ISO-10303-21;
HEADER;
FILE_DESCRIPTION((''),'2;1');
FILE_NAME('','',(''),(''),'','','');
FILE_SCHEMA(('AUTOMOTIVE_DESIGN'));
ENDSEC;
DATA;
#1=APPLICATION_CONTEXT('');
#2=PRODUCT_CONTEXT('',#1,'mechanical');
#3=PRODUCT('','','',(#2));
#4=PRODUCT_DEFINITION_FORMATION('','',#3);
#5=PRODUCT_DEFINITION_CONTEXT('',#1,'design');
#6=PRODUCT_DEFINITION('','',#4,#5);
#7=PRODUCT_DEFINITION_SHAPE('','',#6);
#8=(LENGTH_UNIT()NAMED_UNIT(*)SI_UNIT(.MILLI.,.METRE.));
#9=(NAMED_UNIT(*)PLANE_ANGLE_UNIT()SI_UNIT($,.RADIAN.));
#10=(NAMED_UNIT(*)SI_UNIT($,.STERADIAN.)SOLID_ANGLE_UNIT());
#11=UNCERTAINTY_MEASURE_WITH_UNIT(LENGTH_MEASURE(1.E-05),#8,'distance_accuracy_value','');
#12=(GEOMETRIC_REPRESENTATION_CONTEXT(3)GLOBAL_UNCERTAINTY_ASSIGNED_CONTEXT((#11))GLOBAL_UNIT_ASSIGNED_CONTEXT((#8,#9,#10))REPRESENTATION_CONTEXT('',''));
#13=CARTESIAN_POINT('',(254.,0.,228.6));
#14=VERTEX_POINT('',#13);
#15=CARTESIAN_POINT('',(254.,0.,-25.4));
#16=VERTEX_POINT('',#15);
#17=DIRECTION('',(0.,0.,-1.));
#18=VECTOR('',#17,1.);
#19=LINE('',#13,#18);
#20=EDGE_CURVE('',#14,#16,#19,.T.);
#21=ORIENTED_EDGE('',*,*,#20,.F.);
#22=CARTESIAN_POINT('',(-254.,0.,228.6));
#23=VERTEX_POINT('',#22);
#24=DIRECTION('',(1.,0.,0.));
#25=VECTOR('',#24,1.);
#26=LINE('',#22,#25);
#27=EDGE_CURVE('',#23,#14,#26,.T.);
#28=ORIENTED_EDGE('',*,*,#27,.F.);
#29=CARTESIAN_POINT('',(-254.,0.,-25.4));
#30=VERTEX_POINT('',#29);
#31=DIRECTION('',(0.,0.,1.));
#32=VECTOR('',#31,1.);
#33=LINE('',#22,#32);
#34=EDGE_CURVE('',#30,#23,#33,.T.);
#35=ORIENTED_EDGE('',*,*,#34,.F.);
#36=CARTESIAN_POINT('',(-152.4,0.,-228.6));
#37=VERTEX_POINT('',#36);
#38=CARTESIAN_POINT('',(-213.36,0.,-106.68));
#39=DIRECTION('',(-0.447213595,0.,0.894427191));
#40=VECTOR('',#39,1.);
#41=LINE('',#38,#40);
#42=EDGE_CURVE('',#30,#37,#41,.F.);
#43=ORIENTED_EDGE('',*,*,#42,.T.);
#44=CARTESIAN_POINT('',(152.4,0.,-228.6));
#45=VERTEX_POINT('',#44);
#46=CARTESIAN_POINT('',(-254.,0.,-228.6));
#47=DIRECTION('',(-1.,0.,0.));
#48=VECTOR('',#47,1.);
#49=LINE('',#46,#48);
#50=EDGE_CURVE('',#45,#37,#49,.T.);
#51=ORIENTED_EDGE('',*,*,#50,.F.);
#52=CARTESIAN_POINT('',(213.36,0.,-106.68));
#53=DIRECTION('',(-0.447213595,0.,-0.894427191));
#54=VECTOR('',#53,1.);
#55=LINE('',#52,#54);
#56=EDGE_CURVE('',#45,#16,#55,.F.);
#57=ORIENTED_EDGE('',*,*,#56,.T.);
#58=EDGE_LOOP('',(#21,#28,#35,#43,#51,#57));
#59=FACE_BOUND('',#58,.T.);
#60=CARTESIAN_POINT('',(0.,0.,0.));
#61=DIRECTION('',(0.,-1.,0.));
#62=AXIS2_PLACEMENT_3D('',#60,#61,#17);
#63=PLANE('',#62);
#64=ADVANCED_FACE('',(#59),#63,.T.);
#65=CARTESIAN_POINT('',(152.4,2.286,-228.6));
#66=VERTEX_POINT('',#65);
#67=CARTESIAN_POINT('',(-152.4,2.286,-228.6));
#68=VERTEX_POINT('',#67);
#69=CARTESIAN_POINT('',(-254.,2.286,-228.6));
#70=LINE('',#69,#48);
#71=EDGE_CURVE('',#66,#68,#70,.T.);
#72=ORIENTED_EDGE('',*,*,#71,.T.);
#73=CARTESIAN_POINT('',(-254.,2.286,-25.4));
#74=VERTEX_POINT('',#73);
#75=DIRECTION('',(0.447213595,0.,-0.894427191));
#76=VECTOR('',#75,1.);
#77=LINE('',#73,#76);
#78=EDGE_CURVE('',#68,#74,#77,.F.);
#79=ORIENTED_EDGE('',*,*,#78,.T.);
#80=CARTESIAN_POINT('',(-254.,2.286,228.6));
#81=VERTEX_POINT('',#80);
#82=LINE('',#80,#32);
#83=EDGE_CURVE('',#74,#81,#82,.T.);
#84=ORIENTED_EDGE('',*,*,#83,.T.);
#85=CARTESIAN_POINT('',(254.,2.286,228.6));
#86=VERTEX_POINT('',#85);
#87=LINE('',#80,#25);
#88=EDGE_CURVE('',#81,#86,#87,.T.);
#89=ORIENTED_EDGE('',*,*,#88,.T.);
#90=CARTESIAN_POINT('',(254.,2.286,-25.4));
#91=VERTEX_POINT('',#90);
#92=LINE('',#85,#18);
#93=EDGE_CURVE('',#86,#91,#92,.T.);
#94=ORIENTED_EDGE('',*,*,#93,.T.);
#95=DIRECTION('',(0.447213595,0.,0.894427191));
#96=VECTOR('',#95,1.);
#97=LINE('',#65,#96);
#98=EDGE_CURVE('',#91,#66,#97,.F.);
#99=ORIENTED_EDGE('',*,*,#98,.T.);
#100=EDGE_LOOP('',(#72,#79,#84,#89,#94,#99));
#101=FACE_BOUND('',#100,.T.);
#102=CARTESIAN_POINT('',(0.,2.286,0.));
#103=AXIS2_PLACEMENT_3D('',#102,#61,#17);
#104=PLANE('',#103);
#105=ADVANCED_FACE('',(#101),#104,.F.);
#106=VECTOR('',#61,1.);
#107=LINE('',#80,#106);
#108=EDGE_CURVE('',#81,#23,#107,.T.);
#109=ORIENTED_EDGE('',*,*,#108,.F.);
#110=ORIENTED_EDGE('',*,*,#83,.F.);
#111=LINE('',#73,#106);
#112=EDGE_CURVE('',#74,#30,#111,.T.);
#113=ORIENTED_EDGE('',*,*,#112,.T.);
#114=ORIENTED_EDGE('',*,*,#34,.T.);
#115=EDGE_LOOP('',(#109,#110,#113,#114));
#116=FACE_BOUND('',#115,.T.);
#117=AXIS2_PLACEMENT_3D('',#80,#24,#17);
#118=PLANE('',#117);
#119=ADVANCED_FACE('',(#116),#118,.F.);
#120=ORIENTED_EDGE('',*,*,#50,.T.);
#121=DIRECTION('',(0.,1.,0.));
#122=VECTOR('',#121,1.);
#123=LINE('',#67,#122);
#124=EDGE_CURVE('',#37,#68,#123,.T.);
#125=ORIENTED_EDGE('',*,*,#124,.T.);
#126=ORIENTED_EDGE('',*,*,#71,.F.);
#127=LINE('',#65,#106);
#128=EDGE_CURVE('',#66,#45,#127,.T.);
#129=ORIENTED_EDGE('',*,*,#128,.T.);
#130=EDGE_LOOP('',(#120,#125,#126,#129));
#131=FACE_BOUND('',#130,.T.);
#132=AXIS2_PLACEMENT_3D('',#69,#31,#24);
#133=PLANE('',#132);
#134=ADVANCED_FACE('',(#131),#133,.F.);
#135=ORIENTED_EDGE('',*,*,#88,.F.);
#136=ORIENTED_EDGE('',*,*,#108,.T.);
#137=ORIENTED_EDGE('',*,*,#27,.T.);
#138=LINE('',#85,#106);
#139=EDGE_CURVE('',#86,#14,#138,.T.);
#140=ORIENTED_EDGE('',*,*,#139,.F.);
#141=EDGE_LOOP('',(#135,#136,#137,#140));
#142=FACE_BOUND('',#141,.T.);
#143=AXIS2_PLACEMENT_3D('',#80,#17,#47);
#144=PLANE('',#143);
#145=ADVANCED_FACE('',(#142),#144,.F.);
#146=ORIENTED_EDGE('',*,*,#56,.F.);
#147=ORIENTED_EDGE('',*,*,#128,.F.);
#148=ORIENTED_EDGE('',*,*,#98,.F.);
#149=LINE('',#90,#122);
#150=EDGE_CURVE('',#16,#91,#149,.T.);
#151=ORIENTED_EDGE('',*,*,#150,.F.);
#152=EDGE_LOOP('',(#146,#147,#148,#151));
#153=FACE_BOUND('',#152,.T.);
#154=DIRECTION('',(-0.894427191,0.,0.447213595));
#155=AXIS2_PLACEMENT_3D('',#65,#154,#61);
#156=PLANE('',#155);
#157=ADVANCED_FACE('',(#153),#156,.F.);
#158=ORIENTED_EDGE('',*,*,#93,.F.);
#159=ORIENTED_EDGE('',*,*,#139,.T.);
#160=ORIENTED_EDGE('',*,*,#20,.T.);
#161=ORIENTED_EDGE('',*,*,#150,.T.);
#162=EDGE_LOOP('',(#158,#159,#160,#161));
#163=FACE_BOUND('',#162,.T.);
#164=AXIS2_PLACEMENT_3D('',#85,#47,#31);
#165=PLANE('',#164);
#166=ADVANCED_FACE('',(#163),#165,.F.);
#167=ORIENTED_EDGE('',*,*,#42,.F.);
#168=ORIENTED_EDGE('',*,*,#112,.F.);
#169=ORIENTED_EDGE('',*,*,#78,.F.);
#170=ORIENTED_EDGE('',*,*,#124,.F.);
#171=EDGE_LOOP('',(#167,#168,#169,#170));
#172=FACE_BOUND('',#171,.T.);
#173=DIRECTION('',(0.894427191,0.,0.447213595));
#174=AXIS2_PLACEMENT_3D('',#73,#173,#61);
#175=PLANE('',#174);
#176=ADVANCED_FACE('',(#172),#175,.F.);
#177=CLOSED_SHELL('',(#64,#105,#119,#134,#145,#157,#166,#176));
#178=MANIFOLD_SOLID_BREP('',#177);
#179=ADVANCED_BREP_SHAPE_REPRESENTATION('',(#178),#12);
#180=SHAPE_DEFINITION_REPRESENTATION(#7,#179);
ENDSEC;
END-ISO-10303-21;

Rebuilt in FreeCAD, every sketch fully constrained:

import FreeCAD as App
import Part
import Sketcher
from FreeCAD import Vector
Q = App.Units.Quantity


def edges_at(feature, points):
    """Names of the edges that pass closest to the given points."""
    edges = feature.Shape.Edges
    near = lambda p: min(range(len(edges)), key=lambda i: edges[i].distToShape(Part.Vertex(*p))[0])
    return sorted({f"Edge{near(p) + 1}" for p in points})


def add_polygon(sketch, points):
    """Adds a closed chain of lines whose ends are joined by coincident constraints."""
    first, n = sketch.GeometryCount, len(points)
    for a, b in zip(points, points[1:] + points[:1]):
        sketch.addGeometry(Part.LineSegment(App.Vector(*a, 0), App.Vector(*b, 0)), False)
    for i in range(n):
        sketch.addConstraint(Sketcher.Constraint("Coincident", first + i, 2, first + (i + 1) % n, 1))

doc = App.newDocument("Part")
body = doc.addObject("PartDesign::Body", "Body")

# Sketch on XZ plane
sketch1 = doc.addObject("Sketcher::SketchObject", "Sketch")
body.addObject(sketch1)
sketch1.AttachmentSupport = (doc.XZ_Plane, [""])
sketch1.MapMode = "FlatFace"
add_polygon(sketch1, [(-254, -229), (-254, 229), (254, 229), (254, -229)])  # lines 0-3
sketch1.addConstraint(Sketcher.Constraint("Vertical", 0))
sketch1.addConstraint(Sketcher.Constraint("Horizontal", 1))
sketch1.addConstraint(Sketcher.Constraint("Vertical", 2))
sketch1.addConstraint(Sketcher.Constraint("Horizontal", 3))
sketch1.addConstraint(Sketcher.Constraint("Symmetric", 0, 2, 2, 2, -1, 1))
sketch1.addConstraint(Sketcher.Constraint("DistanceX", 1, 1, 1, 2, Q("20 in")))
sketch1.addConstraint(Sketcher.Constraint("DistanceY", 0, 1, 0, 2, Q("18 in")))
pad1 = doc.addObject("PartDesign::Pad", "Pad")
body.addObject(pad1)
pad1.Profile = sketch1
pad1.Length = Q("0.09 in")
pad1.Reversed = True
doc.recompute()

chamfer = doc.addObject("PartDesign::Chamfer", "Chamfer")
body.addObject(chamfer)
chamfer.Base = (pad1, edges_at(pad1, [(254, 1.143, -228.6)]))
chamfer.ChamferType = "Two distances"
chamfer.Size = Q("8 in")
chamfer.Size2 = Q("4 in")
doc.recompute()

chamfer2 = doc.addObject("PartDesign::Chamfer", "Chamfer001")
body.addObject(chamfer2)
chamfer2.Base = (chamfer, edges_at(chamfer, [(-254, 1.143, -228.6)]))
chamfer2.ChamferType = "Two distances"
chamfer2.Size = Q("4 in")
chamfer2.Size2 = Q("8 in")

doc.recompute()
